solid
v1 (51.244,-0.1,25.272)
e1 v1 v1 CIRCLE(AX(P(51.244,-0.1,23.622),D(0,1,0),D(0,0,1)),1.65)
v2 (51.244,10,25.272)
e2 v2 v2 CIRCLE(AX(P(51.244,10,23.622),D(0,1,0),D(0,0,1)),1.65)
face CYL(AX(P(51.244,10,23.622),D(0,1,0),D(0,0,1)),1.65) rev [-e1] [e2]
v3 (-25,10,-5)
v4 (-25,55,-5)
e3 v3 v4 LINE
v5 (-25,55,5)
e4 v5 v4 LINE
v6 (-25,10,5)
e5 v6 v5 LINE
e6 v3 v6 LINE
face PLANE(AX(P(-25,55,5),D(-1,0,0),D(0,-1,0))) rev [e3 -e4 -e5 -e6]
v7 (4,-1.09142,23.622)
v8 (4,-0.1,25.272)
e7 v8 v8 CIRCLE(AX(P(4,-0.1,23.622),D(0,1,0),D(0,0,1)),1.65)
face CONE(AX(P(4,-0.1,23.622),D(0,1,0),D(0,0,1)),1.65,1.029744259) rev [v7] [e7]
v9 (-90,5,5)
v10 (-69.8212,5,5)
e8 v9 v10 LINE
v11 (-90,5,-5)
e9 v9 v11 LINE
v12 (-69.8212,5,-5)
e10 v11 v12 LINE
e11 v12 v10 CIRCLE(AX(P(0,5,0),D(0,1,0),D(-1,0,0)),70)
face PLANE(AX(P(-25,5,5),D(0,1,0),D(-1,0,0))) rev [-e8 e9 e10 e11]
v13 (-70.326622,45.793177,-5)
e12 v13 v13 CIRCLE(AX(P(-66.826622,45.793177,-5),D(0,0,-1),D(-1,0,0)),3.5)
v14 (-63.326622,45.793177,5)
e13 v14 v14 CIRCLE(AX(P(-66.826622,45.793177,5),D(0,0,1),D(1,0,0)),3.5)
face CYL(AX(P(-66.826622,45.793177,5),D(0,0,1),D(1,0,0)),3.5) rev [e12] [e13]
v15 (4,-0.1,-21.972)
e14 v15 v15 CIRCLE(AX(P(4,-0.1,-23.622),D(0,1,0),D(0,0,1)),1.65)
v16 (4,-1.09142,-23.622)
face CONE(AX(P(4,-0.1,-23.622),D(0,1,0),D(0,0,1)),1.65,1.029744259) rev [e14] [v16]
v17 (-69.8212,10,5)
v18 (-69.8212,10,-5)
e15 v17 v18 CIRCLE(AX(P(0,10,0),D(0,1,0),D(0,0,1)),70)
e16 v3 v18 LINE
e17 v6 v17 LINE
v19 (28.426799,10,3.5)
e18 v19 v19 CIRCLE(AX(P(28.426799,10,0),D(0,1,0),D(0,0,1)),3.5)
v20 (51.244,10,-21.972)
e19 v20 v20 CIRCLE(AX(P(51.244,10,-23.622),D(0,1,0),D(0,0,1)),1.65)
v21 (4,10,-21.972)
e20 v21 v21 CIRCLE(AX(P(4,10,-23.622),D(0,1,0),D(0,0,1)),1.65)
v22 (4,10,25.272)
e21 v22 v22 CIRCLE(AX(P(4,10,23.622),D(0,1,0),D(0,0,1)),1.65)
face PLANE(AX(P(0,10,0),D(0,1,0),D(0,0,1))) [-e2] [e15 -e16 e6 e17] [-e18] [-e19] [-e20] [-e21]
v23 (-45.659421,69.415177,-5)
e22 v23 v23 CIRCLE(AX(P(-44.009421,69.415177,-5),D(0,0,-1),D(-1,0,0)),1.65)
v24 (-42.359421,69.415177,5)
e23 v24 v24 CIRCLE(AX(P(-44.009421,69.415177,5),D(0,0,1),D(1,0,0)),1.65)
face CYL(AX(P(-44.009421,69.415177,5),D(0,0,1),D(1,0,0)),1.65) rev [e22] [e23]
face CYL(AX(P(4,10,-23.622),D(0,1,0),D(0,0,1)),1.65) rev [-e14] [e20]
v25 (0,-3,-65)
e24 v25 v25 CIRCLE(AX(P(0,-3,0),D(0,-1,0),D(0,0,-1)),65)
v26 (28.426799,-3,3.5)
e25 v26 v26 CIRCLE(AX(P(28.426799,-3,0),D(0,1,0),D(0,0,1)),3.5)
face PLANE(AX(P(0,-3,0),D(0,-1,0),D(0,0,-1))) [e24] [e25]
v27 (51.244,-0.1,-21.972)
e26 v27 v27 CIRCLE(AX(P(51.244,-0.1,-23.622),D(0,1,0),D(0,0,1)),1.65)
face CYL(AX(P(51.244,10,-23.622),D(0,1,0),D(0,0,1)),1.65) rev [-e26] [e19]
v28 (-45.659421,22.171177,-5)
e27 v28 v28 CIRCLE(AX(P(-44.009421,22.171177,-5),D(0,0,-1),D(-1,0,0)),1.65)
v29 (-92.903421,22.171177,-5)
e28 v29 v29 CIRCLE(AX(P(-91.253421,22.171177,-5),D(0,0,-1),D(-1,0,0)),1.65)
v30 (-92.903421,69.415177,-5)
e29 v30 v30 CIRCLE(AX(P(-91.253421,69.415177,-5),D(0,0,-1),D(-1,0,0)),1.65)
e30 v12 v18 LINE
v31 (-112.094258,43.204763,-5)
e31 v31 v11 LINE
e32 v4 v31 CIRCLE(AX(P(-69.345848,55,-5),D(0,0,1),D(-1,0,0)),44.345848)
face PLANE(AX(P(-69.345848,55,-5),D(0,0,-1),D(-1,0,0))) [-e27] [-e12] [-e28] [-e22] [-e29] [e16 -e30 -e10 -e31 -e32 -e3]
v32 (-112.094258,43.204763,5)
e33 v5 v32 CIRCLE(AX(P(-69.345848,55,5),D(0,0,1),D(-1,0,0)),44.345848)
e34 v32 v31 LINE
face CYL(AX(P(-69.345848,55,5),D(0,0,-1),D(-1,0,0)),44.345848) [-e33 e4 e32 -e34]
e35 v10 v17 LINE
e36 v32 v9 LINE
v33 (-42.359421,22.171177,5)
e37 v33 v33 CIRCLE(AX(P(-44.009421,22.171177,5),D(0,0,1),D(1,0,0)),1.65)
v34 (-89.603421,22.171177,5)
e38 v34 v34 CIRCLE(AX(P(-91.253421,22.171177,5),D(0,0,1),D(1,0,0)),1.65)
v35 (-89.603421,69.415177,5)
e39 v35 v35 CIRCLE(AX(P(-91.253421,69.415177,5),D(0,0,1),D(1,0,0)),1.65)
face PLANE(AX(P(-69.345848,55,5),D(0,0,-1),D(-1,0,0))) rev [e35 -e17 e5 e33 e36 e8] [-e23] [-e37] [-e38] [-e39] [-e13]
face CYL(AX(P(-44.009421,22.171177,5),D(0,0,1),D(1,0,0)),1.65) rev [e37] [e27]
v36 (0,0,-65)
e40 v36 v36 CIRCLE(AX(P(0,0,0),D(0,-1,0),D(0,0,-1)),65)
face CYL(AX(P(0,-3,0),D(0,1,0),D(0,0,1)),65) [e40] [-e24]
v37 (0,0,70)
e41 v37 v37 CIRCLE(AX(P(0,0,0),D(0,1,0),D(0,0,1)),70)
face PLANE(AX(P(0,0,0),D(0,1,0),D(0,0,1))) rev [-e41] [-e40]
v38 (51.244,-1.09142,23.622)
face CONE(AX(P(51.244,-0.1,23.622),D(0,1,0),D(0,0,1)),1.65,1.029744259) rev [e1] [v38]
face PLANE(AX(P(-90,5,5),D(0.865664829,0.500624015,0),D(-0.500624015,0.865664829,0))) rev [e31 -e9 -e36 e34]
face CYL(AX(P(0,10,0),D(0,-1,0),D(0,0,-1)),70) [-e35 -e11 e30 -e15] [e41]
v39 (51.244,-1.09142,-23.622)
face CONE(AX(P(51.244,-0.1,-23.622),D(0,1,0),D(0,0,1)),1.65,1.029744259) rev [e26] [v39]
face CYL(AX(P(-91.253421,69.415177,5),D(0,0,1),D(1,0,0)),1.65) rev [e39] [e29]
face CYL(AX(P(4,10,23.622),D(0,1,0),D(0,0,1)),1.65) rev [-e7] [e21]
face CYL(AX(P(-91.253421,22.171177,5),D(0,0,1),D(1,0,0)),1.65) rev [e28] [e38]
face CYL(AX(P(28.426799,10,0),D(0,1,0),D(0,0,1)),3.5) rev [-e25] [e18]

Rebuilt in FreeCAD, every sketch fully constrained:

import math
import FreeCAD as App
import Part
import Sketcher

V = App.Vector
Q = App.Units.Quantity

doc = App.newDocument("Part")
body = doc.addObject("PartDesign::Body", "Body")

# Sketch on XZ plane
sketch1 = doc.addObject("Sketcher::SketchObject", "Sketch")
body.addObject(sketch1)
sketch1.AttachmentSupport = (doc.XZ_Plane, [""])
sketch1.MapMode = "FlatFace"
sketch1.addGeometry(Part.Circle(V(0, 0, 0), V(0, 0, 1), 70), False)
sketch1.addConstraint(Sketcher.Constraint("Coincident", 0, 3, -1, 1))
sketch1.addConstraint(Sketcher.Constraint("Diameter", 0, Q("140 mm")))
pad1 = doc.addObject("PartDesign::Pad", "Pad")
body.addObject(pad1)
pad1.Profile = sketch1
pad1.Length = 10
pad1.Reversed = True

# Sketch on XZ plane
sketch2 = doc.addObject("Sketcher::SketchObject", "Sketch001")
body.addObject(sketch2)
sketch2.AttachmentSupport = (doc.XZ_Plane, [""])
sketch2.MapMode = "FlatFace"
sketch2.addGeometry(Part.Circle(V(0, 0, 0), V(0, 0, 1), 65), False)
sketch2.addConstraint(Sketcher.Constraint("Coincident", 0, 3, -1, 1))
sketch2.addConstraint(Sketcher.Constraint("Diameter", 0, Q("130 mm")))
pad2 = doc.addObject("PartDesign::Pad", "Pad001")
body.addObject(pad2)
pad2.Profile = sketch2
pad2.Length = 3

# Sketch on XY plane
sketch3 = doc.addObject("Sketcher::SketchObject", "Sketch002")
body.addObject(sketch3)
sketch3.AttachmentSupport = (doc.XY_Plane, [""])
sketch3.MapMode = "FlatFace"
sketch3.addGeometry(Part.LineSegment(V(-25, 5, 0), V(-25, 55, 0)), False)
sketch3.addGeometry(Part.ArcOfCircle(Part.Circle(V(-69, 55, 0), V(0, 0, 1), 44), math.radians(0), math.radians(195)), False)
sketch3.addGeometry(Part.LineSegment(V(-112, 43, 0), V(-90, 5, 0)), False)
sketch3.addGeometry(Part.LineSegment(V(-90, 5, 0), V(-25, 5, 0)), False)
sketch3.addConstraint(Sketcher.Constraint("Tangent", 0, 2, 1, 1))
sketch3.addConstraint(Sketcher.Constraint("Coincident", 1, 2, 2, 1))
sketch3.addConstraint(Sketcher.Constraint("Coincident", 2, 2, 3, 1))
sketch3.addConstraint(Sketcher.Constraint("Coincident", 3, 2, 0, 1))
sketch3.addConstraint(Sketcher.Constraint("Vertical", 0))
sketch3.addConstraint(Sketcher.Constraint("Horizontal", 3))
sketch3.addConstraint(Sketcher.Constraint("DistanceX", 3, 1, 3, 2, Q("65 mm")))
sketch3.addConstraint(Sketcher.Constraint("DistanceY", 0, 1, 0, 2, Q("50 mm")))
sketch3.addConstraint(Sketcher.Constraint("DistanceY", -1, 1, 1, 3, Q("55 mm")))
sketch3.addConstraint(Sketcher.Constraint("DistanceX", 0, 2, -1, 1, Q("25 mm")))
sketch3.addConstraint(Sketcher.Constraint("Radius", 1, Q("44.345848 mm")))
sketch3.addConstraint(Sketcher.Constraint("DistanceX", 1, 2, 1, 3, Q("42.74841 mm")))
pad3 = doc.addObject("PartDesign::Pad", "Pad002")
body.addObject(pad3)
pad3.Profile = sketch3
pad3.Length = 10
pad3.Midplane = True

# Sketch on XZ plane
sketch4 = doc.addObject("Sketcher::SketchObject", "Sketch003")
body.addObject(sketch4)
sketch4.AttachmentSupport = (doc.XZ_Plane, [""])
sketch4.MapMode = "FlatFace"
sketch4.AttachmentOffset = App.Placement(V(0, 0, -10), App.Rotation())
sketch4.addGeometry(Part.Circle(V(4, -23.6, 0), V(0, 0, 1), 1.6), False)
sketch4.addGeometry(Part.Circle(V(51.2, -23.6, 0), V(0, 0, 1), 1.6), False)
sketch4.addGeometry(Part.Circle(V(51.2, 23.6, 0), V(0, 0, 1), 1.6), False)
sketch4.addGeometry(Part.Circle(V(4, 23.6, 0), V(0, 0, 1), 1.6), False)
sketch4.addConstraint(Sketcher.Constraint("Equal", 0, 1))
sketch4.addConstraint(Sketcher.Constraint("Equal", 1, 2))
sketch4.addConstraint(Sketcher.Constraint("Equal", 2, 3))
sketch4.addConstraint(Sketcher.Constraint("Symmetric", 1, 3, 2, 3, -1))
sketch4.addConstraint(Sketcher.Constraint("Symmetric", 0, 3, 3, 3, -1))
sketch4.addConstraint(Sketcher.Constraint("Horizontal", 0, 3, 1, 3))
sketch4.addConstraint(Sketcher.Constraint("Diameter", 0, Q("3.3 mm")))
sketch4.addConstraint(Sketcher.Constraint("DistanceX", -1, 1, 0, 3, Q("4 mm")))
sketch4.addConstraint(Sketcher.Constraint("DistanceY", 0, 3, -1, 1, Q("23.622 mm")))
sketch4.addConstraint(Sketcher.Constraint("DistanceX", -1, 1, 1, 3, Q("51.244 mm")))
doc.recompute()
hole = doc.addObject("PartDesign::Hole", "Hole")
body.addObject(hole)
hole.Profile = sketch4
hole.ThreadType = "None"
hole.Diameter = 3.3
hole.DepthType = "Dimension"
hole.Depth = 10.1
hole.DrillPoint = "Angled"
hole.DrillPointAngle = 118
hole.Reversed = True

# Sketch on XZ plane
sketch5 = doc.addObject("Sketcher::SketchObject", "Sketch004")
body.addObject(sketch5)
sketch5.AttachmentSupport = (doc.XZ_Plane, [""])
sketch5.MapMode = "FlatFace"
sketch5.AttachmentOffset = App.Placement(V(0, 0, -10), App.Rotation())
sketch5.addGeometry(Part.Circle(V(28.4, 0, 0), V(0, 0, 1), 3.5), False)
sketch5.addConstraint(Sketcher.Constraint("PointOnObject", 0, 3, -1))
sketch5.addConstraint(Sketcher.Constraint("Diameter", 0, Q("7 mm")))
sketch5.addConstraint(Sketcher.Constraint("DistanceX", -1, 1, 0, 3, Q("28.426799 mm")))
doc.recompute()
hole2 = doc.addObject("PartDesign::Hole", "Hole001")
body.addObject(hole2)
hole2.Profile = sketch5
hole2.ThreadType = "None"
hole2.Diameter = 7
hole2.DepthType = "ThroughAll"
hole2.Reversed = True

# Sketch on XY plane
sketch6 = doc.addObject("Sketcher::SketchObject", "Sketch005")
body.addObject(sketch6)
sketch6.AttachmentSupport = (doc.XY_Plane, [""])
sketch6.MapMode = "FlatFace"
sketch6.AttachmentOffset = App.Placement(V(0, 0, 5), App.Rotation())
sketch6.addGeometry(Part.Circle(V(-91.3, 69.4, 0), V(0, 0, 1), 1.6), False)
sketch6.addGeometry(Part.Circle(V(-44, 69.4, 0), V(0, 0, 1), 1.6), False)
sketch6.addGeometry(Part.Circle(V(-44, 22.2, 0), V(0, 0, 1), 1.6), False)
sketch6.addGeometry(Part.Circle(V(-91.3, 22.2, 0), V(0, 0, 1), 1.6), False)
sketch6.addConstraint(Sketcher.Constraint("Equal", 0, 1))
sketch6.addConstraint(Sketcher.Constraint("Equal", 1, 2))
sketch6.addConstraint(Sketcher.Constraint("Equal", 2, 3))
sketch6.addConstraint(Sketcher.Constraint("Horizontal", 0, 3, 1, 3))
sketch6.addConstraint(Sketcher.Constraint("Horizontal", 2, 3, 3, 3))
sketch6.addConstraint(Sketcher.Constraint("Vertical", 1, 3, 2, 3))
sketch6.addConstraint(Sketcher.Constraint("Vertical", 0, 3, 3, 3))
sketch6.addConstraint(Sketcher.Constraint("Diameter", 0, Q("3.3 mm")))
sketch6.addConstraint(Sketcher.Constraint("DistanceX", 0, 3, 1, 3, Q("47.244 mm")))
sketch6.addConstraint(Sketcher.Constraint("DistanceY", 2, 3, 1, 3, Q("47.244 mm")))
sketch6.addConstraint(Sketcher.Constraint("DistanceX", 0, 3, -1, 1, Q("91.253421 mm")))
sketch6.addConstraint(Sketcher.Constraint("DistanceY", -1, 1, 0, 3, Q("69.415177 mm")))
doc.recompute()
hole3 = doc.addObject("PartDesign::Hole", "Hole002")
body.addObject(hole3)
hole3.Profile = sketch6
hole3.ThreadType = "None"
hole3.Diameter = 3.3
hole3.DepthType = "Dimension"
hole3.Depth = 10.1
hole3.DrillPoint = "Angled"
hole3.DrillPointAngle = 118

# Sketch on XY plane
sketch7 = doc.addObject("Sketcher::SketchObject", "Sketch006")
body.addObject(sketch7)
sketch7.AttachmentSupport = (doc.XY_Plane, [""])
sketch7.MapMode = "FlatFace"
sketch7.AttachmentOffset = App.Placement(V(0, 0, 5), App.Rotation())
sketch7.addGeometry(Part.Circle(V(-66.8, 45.8, 0), V(0, 0, 1), 3.5), False)
sketch7.addConstraint(Sketcher.Constraint("Diameter", 0, Q("7 mm")))
sketch7.addConstraint(Sketcher.Constraint("DistanceX", 0, 3, -1, 1, Q("66.826622 mm")))
sketch7.addConstraint(Sketcher.Constraint("DistanceY", -1, 1, 0, 3, Q("45.793177 mm")))
doc.recompute()
hole4 = doc.addObject("PartDesign::Hole", "Hole003")
body.addObject(hole4)
hole4.Profile = sketch7
hole4.ThreadType = "None"
hole4.Diameter = 7
hole4.DepthType = "ThroughAll"

doc.recompute()
